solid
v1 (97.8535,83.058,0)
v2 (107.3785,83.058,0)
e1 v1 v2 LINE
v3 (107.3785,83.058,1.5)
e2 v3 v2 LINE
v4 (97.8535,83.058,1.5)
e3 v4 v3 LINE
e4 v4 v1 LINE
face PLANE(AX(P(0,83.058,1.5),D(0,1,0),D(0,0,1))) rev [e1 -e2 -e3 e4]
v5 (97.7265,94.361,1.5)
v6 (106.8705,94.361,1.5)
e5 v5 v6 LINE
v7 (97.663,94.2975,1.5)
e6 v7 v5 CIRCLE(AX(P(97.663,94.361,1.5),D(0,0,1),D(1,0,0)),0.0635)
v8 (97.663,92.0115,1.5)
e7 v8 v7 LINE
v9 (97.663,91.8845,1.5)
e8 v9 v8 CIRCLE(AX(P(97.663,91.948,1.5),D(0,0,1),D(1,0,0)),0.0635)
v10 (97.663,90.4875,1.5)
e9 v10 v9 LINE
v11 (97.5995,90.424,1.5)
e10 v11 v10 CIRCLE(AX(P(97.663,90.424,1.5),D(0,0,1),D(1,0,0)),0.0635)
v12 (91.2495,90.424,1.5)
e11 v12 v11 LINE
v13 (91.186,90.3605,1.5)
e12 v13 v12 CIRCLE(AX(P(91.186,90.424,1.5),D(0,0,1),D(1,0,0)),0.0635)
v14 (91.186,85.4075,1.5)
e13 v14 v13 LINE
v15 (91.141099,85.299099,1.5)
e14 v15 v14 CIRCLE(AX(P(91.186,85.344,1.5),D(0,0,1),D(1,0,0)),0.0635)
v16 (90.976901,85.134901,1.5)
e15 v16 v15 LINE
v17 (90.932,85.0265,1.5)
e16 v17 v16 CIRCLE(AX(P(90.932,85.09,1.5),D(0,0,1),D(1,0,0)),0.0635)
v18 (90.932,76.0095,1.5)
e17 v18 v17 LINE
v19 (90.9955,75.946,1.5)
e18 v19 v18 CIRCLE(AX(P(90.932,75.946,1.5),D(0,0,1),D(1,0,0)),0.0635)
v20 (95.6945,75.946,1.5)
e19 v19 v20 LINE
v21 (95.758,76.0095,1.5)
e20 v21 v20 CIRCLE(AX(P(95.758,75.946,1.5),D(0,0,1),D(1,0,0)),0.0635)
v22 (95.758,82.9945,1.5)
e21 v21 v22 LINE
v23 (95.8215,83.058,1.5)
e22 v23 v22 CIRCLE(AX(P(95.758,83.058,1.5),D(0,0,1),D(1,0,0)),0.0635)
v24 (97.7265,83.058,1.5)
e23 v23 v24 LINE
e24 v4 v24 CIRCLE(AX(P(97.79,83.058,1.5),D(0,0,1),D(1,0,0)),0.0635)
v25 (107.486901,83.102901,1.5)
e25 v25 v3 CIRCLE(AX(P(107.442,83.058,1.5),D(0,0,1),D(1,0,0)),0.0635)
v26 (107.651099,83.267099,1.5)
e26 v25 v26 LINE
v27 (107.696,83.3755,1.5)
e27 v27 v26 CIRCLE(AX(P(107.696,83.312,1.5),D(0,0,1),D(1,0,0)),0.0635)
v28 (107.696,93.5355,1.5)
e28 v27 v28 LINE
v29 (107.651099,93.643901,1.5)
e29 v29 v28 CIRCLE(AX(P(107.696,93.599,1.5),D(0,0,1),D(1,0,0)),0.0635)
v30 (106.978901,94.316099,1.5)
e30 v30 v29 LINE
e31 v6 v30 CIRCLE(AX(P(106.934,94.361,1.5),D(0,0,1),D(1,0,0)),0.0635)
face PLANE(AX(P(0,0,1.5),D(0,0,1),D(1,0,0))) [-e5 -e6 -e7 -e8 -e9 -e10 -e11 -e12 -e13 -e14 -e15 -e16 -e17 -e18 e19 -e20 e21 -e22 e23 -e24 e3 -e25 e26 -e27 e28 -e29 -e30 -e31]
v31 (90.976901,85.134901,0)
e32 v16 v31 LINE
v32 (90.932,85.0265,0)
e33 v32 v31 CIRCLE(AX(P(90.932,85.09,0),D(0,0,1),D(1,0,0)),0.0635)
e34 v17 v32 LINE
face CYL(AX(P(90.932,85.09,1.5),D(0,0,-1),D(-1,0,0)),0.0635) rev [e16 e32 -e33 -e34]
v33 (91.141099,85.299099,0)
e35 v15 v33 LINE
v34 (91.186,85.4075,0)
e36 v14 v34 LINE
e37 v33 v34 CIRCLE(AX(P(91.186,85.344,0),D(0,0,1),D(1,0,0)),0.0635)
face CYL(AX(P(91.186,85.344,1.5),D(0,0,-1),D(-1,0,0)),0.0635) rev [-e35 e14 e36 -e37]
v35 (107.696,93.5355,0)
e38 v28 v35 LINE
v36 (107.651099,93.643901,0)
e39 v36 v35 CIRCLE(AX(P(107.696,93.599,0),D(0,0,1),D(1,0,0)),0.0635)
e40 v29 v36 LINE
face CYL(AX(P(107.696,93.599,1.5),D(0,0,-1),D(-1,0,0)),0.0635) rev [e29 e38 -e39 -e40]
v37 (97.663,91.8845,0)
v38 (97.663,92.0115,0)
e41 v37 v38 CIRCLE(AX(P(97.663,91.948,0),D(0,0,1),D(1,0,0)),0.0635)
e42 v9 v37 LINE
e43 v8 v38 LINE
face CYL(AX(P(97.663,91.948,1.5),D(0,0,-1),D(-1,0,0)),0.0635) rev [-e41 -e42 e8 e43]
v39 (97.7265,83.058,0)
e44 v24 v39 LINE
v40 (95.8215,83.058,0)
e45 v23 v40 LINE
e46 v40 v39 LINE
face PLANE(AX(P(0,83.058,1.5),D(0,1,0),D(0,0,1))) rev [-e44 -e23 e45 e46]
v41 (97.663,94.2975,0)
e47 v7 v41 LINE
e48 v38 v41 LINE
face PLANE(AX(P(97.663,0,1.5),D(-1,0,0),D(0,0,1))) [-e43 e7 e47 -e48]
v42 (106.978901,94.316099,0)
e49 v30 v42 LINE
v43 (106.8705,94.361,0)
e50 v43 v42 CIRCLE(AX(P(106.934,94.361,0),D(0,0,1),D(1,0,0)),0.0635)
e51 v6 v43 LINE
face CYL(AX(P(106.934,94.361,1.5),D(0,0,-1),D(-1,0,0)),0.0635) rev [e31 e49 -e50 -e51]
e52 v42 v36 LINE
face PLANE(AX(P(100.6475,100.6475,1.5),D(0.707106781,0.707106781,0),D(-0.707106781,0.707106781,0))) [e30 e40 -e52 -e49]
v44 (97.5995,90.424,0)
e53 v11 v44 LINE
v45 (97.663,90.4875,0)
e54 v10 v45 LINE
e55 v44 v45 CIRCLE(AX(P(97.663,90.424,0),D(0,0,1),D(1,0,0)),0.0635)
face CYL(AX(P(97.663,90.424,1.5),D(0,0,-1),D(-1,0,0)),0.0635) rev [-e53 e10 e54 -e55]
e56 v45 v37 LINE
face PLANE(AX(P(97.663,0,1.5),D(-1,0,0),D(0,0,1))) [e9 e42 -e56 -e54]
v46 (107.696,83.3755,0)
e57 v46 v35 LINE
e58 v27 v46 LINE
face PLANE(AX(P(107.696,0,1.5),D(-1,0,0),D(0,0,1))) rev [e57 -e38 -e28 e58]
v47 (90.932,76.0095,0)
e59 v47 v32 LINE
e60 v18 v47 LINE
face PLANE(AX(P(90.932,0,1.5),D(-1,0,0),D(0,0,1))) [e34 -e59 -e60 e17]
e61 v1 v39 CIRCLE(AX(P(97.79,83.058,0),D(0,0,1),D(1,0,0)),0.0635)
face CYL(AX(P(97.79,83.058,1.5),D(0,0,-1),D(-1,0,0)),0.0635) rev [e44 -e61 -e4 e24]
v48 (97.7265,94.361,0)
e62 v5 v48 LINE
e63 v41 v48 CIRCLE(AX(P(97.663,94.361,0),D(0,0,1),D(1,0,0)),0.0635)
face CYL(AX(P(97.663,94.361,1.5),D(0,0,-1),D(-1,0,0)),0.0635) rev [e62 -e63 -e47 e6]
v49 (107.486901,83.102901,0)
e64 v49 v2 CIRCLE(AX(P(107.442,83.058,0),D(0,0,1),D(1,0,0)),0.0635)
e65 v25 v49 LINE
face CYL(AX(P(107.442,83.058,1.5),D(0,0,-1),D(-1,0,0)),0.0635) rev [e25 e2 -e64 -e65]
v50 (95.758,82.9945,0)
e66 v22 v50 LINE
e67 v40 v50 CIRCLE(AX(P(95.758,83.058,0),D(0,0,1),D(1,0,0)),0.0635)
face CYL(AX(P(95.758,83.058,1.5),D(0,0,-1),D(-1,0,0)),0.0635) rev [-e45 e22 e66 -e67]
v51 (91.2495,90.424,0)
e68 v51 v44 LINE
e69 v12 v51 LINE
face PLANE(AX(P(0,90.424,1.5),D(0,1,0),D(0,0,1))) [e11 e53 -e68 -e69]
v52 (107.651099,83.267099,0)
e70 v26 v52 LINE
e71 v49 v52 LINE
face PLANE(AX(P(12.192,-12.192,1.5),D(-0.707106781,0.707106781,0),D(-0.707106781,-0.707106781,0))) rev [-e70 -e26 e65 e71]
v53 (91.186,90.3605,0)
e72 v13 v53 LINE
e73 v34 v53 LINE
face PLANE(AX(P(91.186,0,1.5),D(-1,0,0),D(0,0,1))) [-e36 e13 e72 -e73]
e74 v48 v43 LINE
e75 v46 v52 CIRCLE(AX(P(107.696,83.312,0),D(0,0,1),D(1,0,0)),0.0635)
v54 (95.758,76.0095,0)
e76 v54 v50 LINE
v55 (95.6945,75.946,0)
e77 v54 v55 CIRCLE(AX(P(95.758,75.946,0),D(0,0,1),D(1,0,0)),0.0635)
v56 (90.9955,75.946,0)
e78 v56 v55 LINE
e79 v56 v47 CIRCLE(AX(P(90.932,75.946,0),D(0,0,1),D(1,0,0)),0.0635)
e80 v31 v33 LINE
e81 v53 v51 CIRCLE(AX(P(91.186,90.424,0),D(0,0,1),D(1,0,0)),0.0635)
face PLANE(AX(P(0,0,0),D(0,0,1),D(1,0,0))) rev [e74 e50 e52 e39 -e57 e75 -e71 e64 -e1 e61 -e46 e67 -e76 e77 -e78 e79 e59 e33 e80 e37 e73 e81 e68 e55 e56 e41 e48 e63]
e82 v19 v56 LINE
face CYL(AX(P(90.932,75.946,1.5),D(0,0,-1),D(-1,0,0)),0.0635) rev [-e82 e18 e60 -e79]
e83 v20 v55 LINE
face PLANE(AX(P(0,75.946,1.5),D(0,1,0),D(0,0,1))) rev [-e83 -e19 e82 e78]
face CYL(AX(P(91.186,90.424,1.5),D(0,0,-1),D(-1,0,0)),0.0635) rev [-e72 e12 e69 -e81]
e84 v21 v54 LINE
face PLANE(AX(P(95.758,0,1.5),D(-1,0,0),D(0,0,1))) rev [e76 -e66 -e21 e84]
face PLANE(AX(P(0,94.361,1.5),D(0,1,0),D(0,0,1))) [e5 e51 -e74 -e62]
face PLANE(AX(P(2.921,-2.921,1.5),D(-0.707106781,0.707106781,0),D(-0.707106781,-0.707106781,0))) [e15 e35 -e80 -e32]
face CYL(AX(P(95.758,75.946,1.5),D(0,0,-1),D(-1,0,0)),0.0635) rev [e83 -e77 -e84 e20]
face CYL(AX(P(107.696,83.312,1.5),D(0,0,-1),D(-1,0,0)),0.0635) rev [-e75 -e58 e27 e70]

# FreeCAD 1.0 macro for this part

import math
import FreeCAD as App
import Part
import Sketcher
from FreeCAD import Vector
Q = App.Units.Quantity

doc = App.newDocument("Part")
body = doc.addObject("PartDesign::Body", "Body")

sketch1 = body.newObject("Sketcher::SketchObject", "Sketch")
sketch1.AttachmentSupport = (doc.getObject("XY_Plane"), [""])
sketch1.MapMode = "FlatFace"
sketch1.addGeometry(Part.LineSegment(Vector(91.141, 85.299, 0), Vector(90.977, 85.135, 0)), False)
sketch1.addGeometry(Part.ArcOfCircle(Part.Circle(Vector(90.932, 85.09, 0), Vector(0, 0, 1), 0.064), math.radians(0), math.radians(45)), False)
sketch1.addGeometry(Part.ArcOfCircle(Part.Circle(Vector(90.932, 85.09, 0), Vector(0, 0, 1), 0.063), math.radians(-90), math.radians(0)), False)
sketch1.addGeometry(Part.LineSegment(Vector(90.932, 85.026, 0), Vector(90.932, 76.01, 0)), False)
sketch1.addGeometry(Part.ArcOfCircle(Part.Circle(Vector(90.932, 75.946, 0), Vector(0, 0, 1), 0.063), math.radians(0), math.radians(90)), False)
sketch1.addGeometry(Part.LineSegment(Vector(90.996, 75.946, 0), Vector(95.695, 75.946, 0)), False)
sketch1.addGeometry(Part.ArcOfCircle(Part.Circle(Vector(95.758, 75.946, 0), Vector(0, 0, 1), 0.063), math.radians(90), math.radians(180)), False)
sketch1.addGeometry(Part.LineSegment(Vector(95.758, 76.01, 0), Vector(95.758, 82.995, 0)), False)
sketch1.addGeometry(Part.ArcOfCircle(Part.Circle(Vector(95.758, 83.058, 0), Vector(0, 0, 1), 0.064), math.radians(0), math.radians(270)), False)
sketch1.addGeometry(Part.LineSegment(Vector(95.822, 83.058, 0), Vector(97.727, 83.058, 0)), False)
sketch1.addGeometry(Part.ArcOfCircle(Part.Circle(Vector(97.79, 83.058, 0), Vector(0, 0, 1), 0.064), math.radians(0), math.radians(180)), False)
sketch1.addGeometry(Part.LineSegment(Vector(97.853, 83.058, 0), Vector(107.379, 83.058, 0)), False)
sketch1.addGeometry(Part.ArcOfCircle(Part.Circle(Vector(107.442, 83.058, 0), Vector(0, 0, 1), 0.064), math.radians(45), math.radians(180)), False)
sketch1.addGeometry(Part.LineSegment(Vector(107.487, 83.103, 0), Vector(107.651, 83.267, 0)), False)
sketch1.addGeometry(Part.ArcOfCircle(Part.Circle(Vector(107.696, 83.312, 0), Vector(0, 0, 1), 0.064), math.radians(90), math.radians(225)), False)
sketch1.addGeometry(Part.LineSegment(Vector(107.696, 83.376, 0), Vector(107.696, 93.535, 0)), False)
sketch1.addGeometry(Part.ArcOfCircle(Part.Circle(Vector(107.696, 93.599, 0), Vector(0, 0, 1), 0.064), math.radians(135), math.radians(270)), False)
sketch1.addGeometry(Part.LineSegment(Vector(107.651, 93.644, 0), Vector(106.979, 94.316, 0)), False)
sketch1.addGeometry(Part.ArcOfCircle(Part.Circle(Vector(106.934, 94.361, 0), Vector(0, 0, 1), 0.064), math.radians(-180), math.radians(-45)), False)
sketch1.addGeometry(Part.LineSegment(Vector(106.871, 94.361, 0), Vector(97.727, 94.361, 0)), False)
sketch1.addGeometry(Part.ArcOfCircle(Part.Circle(Vector(97.663, 94.361, 0), Vector(0, 0, 1), 0.063), math.radians(-90), math.radians(0)), False)
sketch1.addGeometry(Part.LineSegment(Vector(97.663, 94.297, 0), Vector(97.663, 92.011, 0)), False)
sketch1.addGeometry(Part.ArcOfCircle(Part.Circle(Vector(97.663, 91.948, 0), Vector(0, 0, 1), 0.063), math.radians(0), math.radians(90)), False)
sketch1.addGeometry(Part.ArcOfCircle(Part.Circle(Vector(97.663, 91.948, 0), Vector(0, 0, 1), 0.063), math.radians(-90), math.radians(0)), False)
sketch1.addGeometry(Part.LineSegment(Vector(97.663, 91.885, 0), Vector(97.663, 90.487, 0)), False)
sketch1.addGeometry(Part.ArcOfCircle(Part.Circle(Vector(97.663, 90.424, 0), Vector(0, 0, 1), 0.063), math.radians(0), math.radians(90)), False)
sketch1.addGeometry(Part.ArcOfCircle(Part.Circle(Vector(97.663, 90.424, 0), Vector(0, 0, 1), 0.064), math.radians(180), math.radians(360)), False)
sketch1.addGeometry(Part.LineSegment(Vector(97.6, 90.424, 0), Vector(91.249, 90.424, 0)), False)
sketch1.addGeometry(Part.ArcOfCircle(Part.Circle(Vector(91.186, 90.424, 0), Vector(0, 0, 1), 0.063), math.radians(-90), math.radians(0)), False)
sketch1.addGeometry(Part.LineSegment(Vector(91.186, 90.361, 0), Vector(91.186, 85.407, 0)), False)
sketch1.addGeometry(Part.ArcOfCircle(Part.Circle(Vector(91.186, 85.344, 0), Vector(0, 0, 1), 0.063), math.radians(0), math.radians(90)), False)
sketch1.addGeometry(Part.ArcOfCircle(Part.Circle(Vector(91.186, 85.344, 0), Vector(0, 0, 1), 0.064), math.radians(-135), math.radians(0)), False)
sketch1.addConstraint(Sketcher.Constraint("Coincident", 0, 2, 1, 2))
sketch1.addConstraint(Sketcher.Constraint("Tangent", 1, 1, 2, 2))
sketch1.addConstraint(Sketcher.Constraint("Coincident", 2, 1, 3, 1))
sketch1.addConstraint(Sketcher.Constraint("Coincident", 3, 2, 4, 2))
sketch1.addConstraint(Sketcher.Constraint("Coincident", 4, 1, 5, 1))
sketch1.addConstraint(Sketcher.Constraint("Coincident", 5, 2, 6, 2))
sketch1.addConstraint(Sketcher.Constraint("Coincident", 6, 1, 7, 1))
sketch1.addConstraint(Sketcher.Constraint("Coincident", 7, 2, 8, 2))
sketch1.addConstraint(Sketcher.Constraint("Coincident", 8, 1, 9, 1))
sketch1.addConstraint(Sketcher.Constraint("Coincident", 9, 2, 10, 2))
sketch1.addConstraint(Sketcher.Constraint("Coincident", 10, 1, 11, 1))
sketch1.addConstraint(Sketcher.Constraint("Coincident", 11, 2, 12, 2))
sketch1.addConstraint(Sketcher.Constraint("Coincident", 12, 1, 13, 1))
sketch1.addConstraint(Sketcher.Constraint("Coincident", 13, 2, 14, 2))
sketch1.addConstraint(Sketcher.Constraint("Coincident", 14, 1, 15, 1))
sketch1.addConstraint(Sketcher.Constraint("Coincident", 15, 2, 16, 2))
sketch1.addConstraint(Sketcher.Constraint("Coincident", 16, 1, 17, 1))
sketch1.addConstraint(Sketcher.Constraint("Coincident", 17, 2, 18, 2))
sketch1.addConstraint(Sketcher.Constraint("Coincident", 18, 1, 19, 1))
sketch1.addConstraint(Sketcher.Constraint("Coincident", 19, 2, 20, 2))
sketch1.addConstraint(Sketcher.Constraint("Coincident", 20, 1, 21, 1))
sketch1.addConstraint(Sketcher.Constraint("Coincident", 21, 2, 22, 2))
sketch1.addConstraint(Sketcher.Constraint("Tangent", 22, 1, 23, 2))
sketch1.addConstraint(Sketcher.Constraint("Coincident", 23, 1, 24, 1))
sketch1.addConstraint(Sketcher.Constraint("Coincident", 24, 2, 25, 2))
sketch1.addConstraint(Sketcher.Constraint("Tangent", 25, 1, 26, 2))
sketch1.addConstraint(Sketcher.Constraint("Coincident", 26, 1, 27, 1))
sketch1.addConstraint(Sketcher.Constraint("Coincident", 27, 2, 28, 2))
sketch1.addConstraint(Sketcher.Constraint("Coincident", 28, 1, 29, 1))
sketch1.addConstraint(Sketcher.Constraint("Coincident", 29, 2, 30, 2))
sketch1.addConstraint(Sketcher.Constraint("Tangent", 30, 1, 31, 2))
sketch1.addConstraint(Sketcher.Constraint("Coincident", 31, 1, 0, 1))
sketch1.addConstraint(Sketcher.Constraint("Vertical", 3))
sketch1.addConstraint(Sketcher.Constraint("Horizontal", 5))
sketch1.addConstraint(Sketcher.Constraint("Vertical", 7))
sketch1.addConstraint(Sketcher.Constraint("Horizontal", 9))
sketch1.addConstraint(Sketcher.Constraint("Horizontal", 11))
sketch1.addConstraint(Sketcher.Constraint("Vertical", 15))
sketch1.addConstraint(Sketcher.Constraint("Horizontal", 19))
sketch1.addConstraint(Sketcher.Constraint("Vertical", 21))
sketch1.addConstraint(Sketcher.Constraint("Vertical", 24))
sketch1.addConstraint(Sketcher.Constraint("Horizontal", 27))
sketch1.addConstraint(Sketcher.Constraint("Vertical", 29))
sketch1.addConstraint(Sketcher.Constraint("Equal", 1, 2))
sketch1.addConstraint(Sketcher.Constraint("Equal", 2, 4))
sketch1.addConstraint(Sketcher.Constraint("Equal", 4, 6))
sketch1.addConstraint(Sketcher.Constraint("Equal", 6, 8))
sketch1.addConstraint(Sketcher.Constraint("Equal", 8, 10))
sketch1.addConstraint(Sketcher.Constraint("Equal", 10, 12))
sketch1.addConstraint(Sketcher.Constraint("Equal", 12, 14))
sketch1.addConstraint(Sketcher.Constraint("Equal", 14, 16))
sketch1.addConstraint(Sketcher.Constraint("Equal", 16, 18))
sketch1.addConstraint(Sketcher.Constraint("Equal", 18, 20))
sketch1.addConstraint(Sketcher.Constraint("Equal", 20, 22))
sketch1.addConstraint(Sketcher.Constraint("Equal", 22, 23))
sketch1.addConstraint(Sketcher.Constraint("Equal", 23, 25))
sketch1.addConstraint(Sketcher.Constraint("Equal", 25, 26))
sketch1.addConstraint(Sketcher.Constraint("Equal", 26, 28))
sketch1.addConstraint(Sketcher.Constraint("Equal", 28, 30))
sketch1.addConstraint(Sketcher.Constraint("Equal", 30, 31))
sketch1.addConstraint(Sketcher.Constraint("Parallel", 0, 13))
sketch1.addConstraint(Sketcher.Constraint("Perpendicular", 13, 17))
sketch1.addConstraint(Sketcher.Constraint("Horizontal", 4, 3, 6, 3))
sketch1.addConstraint(Sketcher.Constraint("Horizontal", 8, 3, 10, 3))
sketch1.addConstraint(Sketcher.Constraint("Horizontal", 10, 3, 12, 3))
sketch1.addConstraint(Sketcher.Constraint("Horizontal", 18, 3, 20, 3))
sketch1.addConstraint(Sketcher.Constraint("Horizontal", 26, 3, 28, 3))
sketch1.addConstraint(Sketcher.Constraint("Horizontal", 2, 3, 1, 1))
sketch1.addConstraint(Sketcher.Constraint("Horizontal", 6, 3, 4, 1))
sketch1.addConstraint(Sketcher.Constraint("Horizontal", 12, 3, 8, 1))
sketch1.addConstraint(Sketcher.Constraint("Horizontal", 9, 2, 10, 1))
sketch1.addConstraint(Sketcher.Constraint("Horizontal", 20, 3, 18, 1))
sketch1.addConstraint(Sketcher.Constraint("Horizontal", 23, 3, 22, 1))
sketch1.addConstraint(Sketcher.Constraint("Horizontal", 28, 3, 25, 1))
sketch1.addConstraint(Sketcher.Constraint("Horizontal", 25, 1, 26, 1))
sketch1.addConstraint(Sketcher.Constraint("Horizontal", 31, 3, 30, 1))
sketch1.addConstraint(Sketcher.Constraint("Vertical", 2, 3, 4, 3))
sketch1.addConstraint(Sketcher.Constraint("Vertical", 6, 3, 8, 3))
sketch1.addConstraint(Sketcher.Constraint("Vertical", 14, 3, 16, 3))
sketch1.addConstraint(Sketcher.Constraint("Vertical", 20, 3, 22, 3))
sketch1.addConstraint(Sketcher.Constraint("Vertical", 23, 3, 25, 3))
sketch1.addConstraint(Sketcher.Constraint("Vertical", 28, 3, 30, 3))
sketch1.addConstraint(Sketcher.Constraint("Vertical", 4, 3, 2, 1))
sketch1.addConstraint(Sketcher.Constraint("Vertical", 8, 3, 6, 1))
sketch1.addConstraint(Sketcher.Constraint("Vertical", 16, 3, 14, 1))
sketch1.addConstraint(Sketcher.Constraint("Vertical", 13, 2, 16, 1))
sketch1.addConstraint(Sketcher.Constraint("Vertical", 9, 2, 19, 2))
sketch1.addConstraint(Sketcher.Constraint("Vertical", 26, 3, 20, 1))
sketch1.addConstraint(Sketcher.Constraint("Vertical", 21, 2, 23, 1))
sketch1.addConstraint(Sketcher.Constraint("Vertical", 31, 3, 28, 1))
sketch1.addConstraint(Sketcher.Constraint("Equal", 0, 13))
sketch1.addConstraint(Sketcher.Constraint("DistanceY", 15, 1, 15, 2, Q("0.4 in")))
sketch1.addConstraint(Sketcher.Constraint("Angle", 0, Q("-135 deg")))
sketch1.addConstraint(Sketcher.Constraint("DistanceX", 19, 2, 19, 1, Q("0.36 in")))
sketch1.addConstraint(Sketcher.Constraint("DistanceX", 27, 2, 27, 1, Q("0.25 in")))
sketch1.addConstraint(Sketcher.Constraint("DistanceY", 21, 2, 21, 1, Q("0.09 in")))
sketch1.addConstraint(Sketcher.Constraint("Radius", 1, Q("0.0025 in")))
sketch1.addConstraint(Sketcher.Constraint("DistanceY", 30, 3, 28, 3, Q("0.2 in")))
sketch1.addConstraint(Sketcher.Constraint("DistanceX", 5, 1, 5, 2, Q("0.185 in")))
sketch1.addConstraint(Sketcher.Constraint("DistanceX", 9, 1, 9, 2, Q("0.075 in")))
sketch1.addConstraint(Sketcher.Constraint("DistanceX", 11, 1, 11, 2, Q("0.375 in")))
sketch1.addConstraint(Sketcher.Constraint("DistanceY", 3, 2, 3, 1, Q("0.355 in")))
sketch1.addConstraint(Sketcher.Constraint("DistanceY", 7, 1, 7, 2, Q("0.275 in")))
sketch1.addConstraint(Sketcher.Constraint("DistanceY", 24, 2, 24, 1, Q("0.055 in")))
sketch1.addConstraint(Sketcher.Constraint("DistanceX", -1, 1, 1, 3, Q("3.58 in")))
sketch1.addConstraint(Sketcher.Constraint("DistanceY", -1, 1, 1, 3, Q("3.35 in")))
sketch1.addConstraint(Sketcher.Constraint("DistanceX", -1, 1, 14, 3, Q("4.24 in")))
sketch1.addConstraint(Sketcher.Constraint("DistanceY", -1, 1, 14, 3, Q("3.28 in")))
sketch1.addConstraint(Sketcher.Constraint("DistanceX", -1, 1, 0, 2, 90.976901))
sketch1.addConstraint(Sketcher.Constraint("DistanceX", -1, 1, 12, 1, 107.486901))
pad1 = body.newObject("PartDesign::Pad", "Pad")
pad1.Profile = sketch1
pad1.Length = 1.5

doc.recompute()
